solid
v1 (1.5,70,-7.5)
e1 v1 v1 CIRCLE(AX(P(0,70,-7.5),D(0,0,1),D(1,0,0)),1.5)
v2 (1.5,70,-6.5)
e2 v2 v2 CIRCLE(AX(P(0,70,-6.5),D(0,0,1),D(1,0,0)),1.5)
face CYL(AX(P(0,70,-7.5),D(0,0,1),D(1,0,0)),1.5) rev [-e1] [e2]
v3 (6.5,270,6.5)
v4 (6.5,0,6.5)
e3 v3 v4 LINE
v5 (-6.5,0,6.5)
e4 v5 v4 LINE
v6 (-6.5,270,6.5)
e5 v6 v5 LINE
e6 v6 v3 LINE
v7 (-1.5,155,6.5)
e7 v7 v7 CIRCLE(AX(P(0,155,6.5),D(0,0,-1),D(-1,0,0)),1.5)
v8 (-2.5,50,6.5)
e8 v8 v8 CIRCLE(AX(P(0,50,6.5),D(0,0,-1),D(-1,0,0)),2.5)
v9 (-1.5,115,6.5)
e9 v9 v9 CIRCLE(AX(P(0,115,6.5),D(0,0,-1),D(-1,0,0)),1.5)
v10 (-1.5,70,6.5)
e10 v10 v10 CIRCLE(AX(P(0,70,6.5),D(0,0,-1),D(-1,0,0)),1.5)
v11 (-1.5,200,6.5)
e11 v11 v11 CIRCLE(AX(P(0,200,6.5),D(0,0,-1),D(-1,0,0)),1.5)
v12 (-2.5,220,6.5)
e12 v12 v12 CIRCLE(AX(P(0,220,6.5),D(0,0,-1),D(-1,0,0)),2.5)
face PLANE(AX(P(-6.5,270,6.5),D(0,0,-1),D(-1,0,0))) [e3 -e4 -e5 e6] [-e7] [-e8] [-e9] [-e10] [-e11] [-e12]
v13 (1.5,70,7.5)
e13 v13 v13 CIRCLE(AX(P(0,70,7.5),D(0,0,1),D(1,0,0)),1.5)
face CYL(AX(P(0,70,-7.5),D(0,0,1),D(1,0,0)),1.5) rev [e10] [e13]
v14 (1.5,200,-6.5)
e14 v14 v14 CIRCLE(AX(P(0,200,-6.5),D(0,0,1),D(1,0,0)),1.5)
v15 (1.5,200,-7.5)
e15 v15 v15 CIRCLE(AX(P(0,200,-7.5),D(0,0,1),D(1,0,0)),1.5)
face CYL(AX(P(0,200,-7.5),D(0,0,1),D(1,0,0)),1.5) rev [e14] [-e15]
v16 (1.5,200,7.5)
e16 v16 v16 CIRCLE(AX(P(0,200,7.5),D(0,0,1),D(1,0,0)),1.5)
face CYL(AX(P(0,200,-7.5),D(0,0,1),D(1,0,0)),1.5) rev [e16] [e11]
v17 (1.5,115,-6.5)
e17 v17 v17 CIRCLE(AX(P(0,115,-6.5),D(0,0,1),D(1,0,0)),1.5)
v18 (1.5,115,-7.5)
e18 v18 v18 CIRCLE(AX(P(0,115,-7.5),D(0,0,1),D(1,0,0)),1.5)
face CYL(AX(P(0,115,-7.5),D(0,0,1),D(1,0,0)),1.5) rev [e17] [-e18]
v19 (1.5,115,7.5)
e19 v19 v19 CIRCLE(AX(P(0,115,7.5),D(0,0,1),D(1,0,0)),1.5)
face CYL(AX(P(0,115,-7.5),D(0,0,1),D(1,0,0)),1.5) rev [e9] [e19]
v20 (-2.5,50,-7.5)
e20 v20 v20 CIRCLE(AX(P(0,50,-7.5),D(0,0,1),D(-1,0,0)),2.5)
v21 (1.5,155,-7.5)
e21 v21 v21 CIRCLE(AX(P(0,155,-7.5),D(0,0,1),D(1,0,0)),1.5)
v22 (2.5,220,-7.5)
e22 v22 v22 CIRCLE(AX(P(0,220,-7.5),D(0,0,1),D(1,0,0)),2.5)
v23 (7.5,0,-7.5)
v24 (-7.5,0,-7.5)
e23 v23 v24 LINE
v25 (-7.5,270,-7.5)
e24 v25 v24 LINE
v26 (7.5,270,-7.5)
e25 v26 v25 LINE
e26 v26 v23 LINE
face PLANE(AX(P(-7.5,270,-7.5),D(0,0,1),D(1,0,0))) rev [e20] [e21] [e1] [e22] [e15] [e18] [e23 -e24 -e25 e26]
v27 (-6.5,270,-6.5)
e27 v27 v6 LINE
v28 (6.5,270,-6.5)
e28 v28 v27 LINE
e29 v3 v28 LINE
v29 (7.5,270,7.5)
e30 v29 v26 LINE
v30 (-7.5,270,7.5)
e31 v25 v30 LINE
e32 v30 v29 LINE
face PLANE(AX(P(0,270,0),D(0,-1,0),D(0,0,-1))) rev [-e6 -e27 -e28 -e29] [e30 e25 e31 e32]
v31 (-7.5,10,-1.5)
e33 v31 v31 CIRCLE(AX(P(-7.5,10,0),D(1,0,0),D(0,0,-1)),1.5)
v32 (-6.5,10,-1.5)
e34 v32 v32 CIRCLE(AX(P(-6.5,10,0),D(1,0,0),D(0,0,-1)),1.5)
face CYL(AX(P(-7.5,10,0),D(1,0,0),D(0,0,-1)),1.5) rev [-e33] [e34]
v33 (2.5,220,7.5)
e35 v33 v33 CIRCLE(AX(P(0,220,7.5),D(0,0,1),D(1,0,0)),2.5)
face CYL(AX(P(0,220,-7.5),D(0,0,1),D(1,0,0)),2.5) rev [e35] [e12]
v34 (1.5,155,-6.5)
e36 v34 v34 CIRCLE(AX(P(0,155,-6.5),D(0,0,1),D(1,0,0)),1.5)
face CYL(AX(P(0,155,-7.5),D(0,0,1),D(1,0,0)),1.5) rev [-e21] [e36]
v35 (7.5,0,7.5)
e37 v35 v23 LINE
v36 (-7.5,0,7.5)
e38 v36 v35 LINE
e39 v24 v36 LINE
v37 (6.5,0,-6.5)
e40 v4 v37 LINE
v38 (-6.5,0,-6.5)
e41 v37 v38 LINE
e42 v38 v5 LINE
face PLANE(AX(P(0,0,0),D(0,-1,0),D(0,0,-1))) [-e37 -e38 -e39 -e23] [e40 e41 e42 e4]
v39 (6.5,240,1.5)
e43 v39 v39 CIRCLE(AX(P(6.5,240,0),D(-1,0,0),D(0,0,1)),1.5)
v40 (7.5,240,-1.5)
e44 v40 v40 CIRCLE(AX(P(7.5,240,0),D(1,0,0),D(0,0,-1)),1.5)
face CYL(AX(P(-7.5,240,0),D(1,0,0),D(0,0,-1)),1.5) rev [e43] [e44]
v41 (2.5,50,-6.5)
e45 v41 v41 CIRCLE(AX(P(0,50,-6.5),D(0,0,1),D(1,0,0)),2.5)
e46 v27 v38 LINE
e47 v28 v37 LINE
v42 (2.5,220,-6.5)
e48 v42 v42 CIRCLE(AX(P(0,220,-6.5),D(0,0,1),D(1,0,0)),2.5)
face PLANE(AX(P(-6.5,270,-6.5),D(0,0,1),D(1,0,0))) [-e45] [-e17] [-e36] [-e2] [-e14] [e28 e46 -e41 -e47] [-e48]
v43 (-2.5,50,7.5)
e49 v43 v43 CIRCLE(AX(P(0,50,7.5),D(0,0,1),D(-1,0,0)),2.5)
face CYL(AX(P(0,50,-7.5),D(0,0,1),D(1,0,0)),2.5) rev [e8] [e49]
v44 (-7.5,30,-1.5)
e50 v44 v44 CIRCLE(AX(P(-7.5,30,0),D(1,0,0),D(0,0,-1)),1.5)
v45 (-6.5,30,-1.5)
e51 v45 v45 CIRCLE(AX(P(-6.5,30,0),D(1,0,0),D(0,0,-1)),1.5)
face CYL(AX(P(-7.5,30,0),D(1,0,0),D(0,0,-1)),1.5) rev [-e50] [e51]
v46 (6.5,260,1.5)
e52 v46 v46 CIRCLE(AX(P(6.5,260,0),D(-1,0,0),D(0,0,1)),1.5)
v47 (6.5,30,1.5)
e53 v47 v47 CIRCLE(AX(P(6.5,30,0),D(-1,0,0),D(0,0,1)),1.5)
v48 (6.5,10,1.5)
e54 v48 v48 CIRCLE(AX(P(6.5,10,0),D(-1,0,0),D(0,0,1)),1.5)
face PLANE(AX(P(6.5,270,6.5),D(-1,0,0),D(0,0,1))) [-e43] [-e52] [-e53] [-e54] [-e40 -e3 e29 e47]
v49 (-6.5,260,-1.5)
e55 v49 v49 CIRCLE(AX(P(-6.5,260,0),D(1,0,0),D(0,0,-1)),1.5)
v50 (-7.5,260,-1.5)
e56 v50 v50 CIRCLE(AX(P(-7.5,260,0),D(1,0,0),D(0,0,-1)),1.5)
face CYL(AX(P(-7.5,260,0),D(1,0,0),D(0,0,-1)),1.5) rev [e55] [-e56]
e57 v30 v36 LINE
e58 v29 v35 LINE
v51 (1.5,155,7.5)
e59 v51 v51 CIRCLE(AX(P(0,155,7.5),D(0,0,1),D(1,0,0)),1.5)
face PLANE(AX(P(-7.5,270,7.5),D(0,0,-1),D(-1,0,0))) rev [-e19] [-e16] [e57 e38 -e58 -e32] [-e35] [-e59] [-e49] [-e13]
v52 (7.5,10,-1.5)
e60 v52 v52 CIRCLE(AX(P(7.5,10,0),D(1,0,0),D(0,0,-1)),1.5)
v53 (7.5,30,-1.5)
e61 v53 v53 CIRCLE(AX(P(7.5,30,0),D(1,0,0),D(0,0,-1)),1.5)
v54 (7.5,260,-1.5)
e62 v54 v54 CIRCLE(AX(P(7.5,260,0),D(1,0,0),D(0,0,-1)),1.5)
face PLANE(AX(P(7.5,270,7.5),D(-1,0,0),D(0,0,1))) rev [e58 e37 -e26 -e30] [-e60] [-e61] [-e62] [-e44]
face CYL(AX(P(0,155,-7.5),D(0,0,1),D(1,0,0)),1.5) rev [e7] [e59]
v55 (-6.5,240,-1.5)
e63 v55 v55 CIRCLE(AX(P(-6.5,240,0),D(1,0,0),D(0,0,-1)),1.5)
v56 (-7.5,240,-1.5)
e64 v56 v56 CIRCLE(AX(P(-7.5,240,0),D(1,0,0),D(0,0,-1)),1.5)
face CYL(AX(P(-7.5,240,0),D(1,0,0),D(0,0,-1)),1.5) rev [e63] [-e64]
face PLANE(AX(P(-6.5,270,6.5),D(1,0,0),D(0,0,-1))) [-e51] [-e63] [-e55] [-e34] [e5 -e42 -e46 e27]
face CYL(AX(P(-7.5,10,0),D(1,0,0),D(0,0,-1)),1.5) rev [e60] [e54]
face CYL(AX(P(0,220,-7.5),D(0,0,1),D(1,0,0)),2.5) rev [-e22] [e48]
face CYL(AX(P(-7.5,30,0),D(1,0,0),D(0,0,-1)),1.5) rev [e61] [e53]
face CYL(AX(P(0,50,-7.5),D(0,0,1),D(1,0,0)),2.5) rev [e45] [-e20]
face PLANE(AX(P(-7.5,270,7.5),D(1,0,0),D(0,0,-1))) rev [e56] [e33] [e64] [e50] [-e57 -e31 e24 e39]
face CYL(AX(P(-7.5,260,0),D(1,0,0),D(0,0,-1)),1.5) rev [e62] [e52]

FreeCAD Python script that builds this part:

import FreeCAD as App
import Part
import Sketcher

V = App.Vector

doc = App.newDocument("Part")
body = doc.addObject("PartDesign::Body", "Body")

# Sketch on XZ plane
sketch1 = body.newObject("Sketcher::SketchObject", "Sketch")
sketch1.AttachmentSupport = (doc.getObject("XZ_Plane"), [""])
sketch1.MapMode = "FlatFace"
sketch1.addGeometry([
    Part.LineSegment(V(-8, -8, 0), V(-8, 8, 0)),  # 0
    Part.LineSegment(V(-8, 8, 0), V(8, 8, 0)),  # 1
    Part.LineSegment(V(8, 8, 0), V(8, -8, 0)),  # 2
    Part.LineSegment(V(8, -8, 0), V(-8, -8, 0)),  # 3
    Part.LineSegment(V(6, 6, 0), V(-6, 6, 0)),  # 4
    Part.LineSegment(V(-6, 6, 0), V(-6, -6, 0)),  # 5
    Part.LineSegment(V(-6, -6, 0), V(6, -6, 0)),  # 6
    Part.LineSegment(V(6, -6, 0), V(6, 6, 0)),  # 7
], False)
sketch1.addConstraint([
    Sketcher.Constraint("Coincident", 0, 2, 1, 1),
    Sketcher.Constraint("Coincident", 1, 2, 2, 1),
    Sketcher.Constraint("Coincident", 2, 2, 3, 1),
    Sketcher.Constraint("Coincident", 3, 2, 0, 1),
    Sketcher.Constraint("Coincident", 4, 2, 5, 1),
    Sketcher.Constraint("Coincident", 5, 2, 6, 1),
    Sketcher.Constraint("Coincident", 6, 2, 7, 1),
    Sketcher.Constraint("Coincident", 7, 2, 4, 1),
    Sketcher.Constraint("Vertical", 0),
    Sketcher.Constraint("Horizontal", 1),
    Sketcher.Constraint("Vertical", 2),
    Sketcher.Constraint("Horizontal", 3),
    Sketcher.Constraint("Horizontal", 4),
    Sketcher.Constraint("Vertical", 5),
    Sketcher.Constraint("Horizontal", 6),
    Sketcher.Constraint("Vertical", 7),
    Sketcher.Constraint("Symmetric", 0, 2, 2, 2, -1, 1),
    Sketcher.Constraint("Symmetric", 4, 2, 6, 2, -1, 1),
    Sketcher.Constraint("Equal", 3, 0),
    Sketcher.Constraint("Equal", 6, 5),
    Sketcher.Constraint("DistanceX", 1, 1, 1, 2, 15.0),
    Sketcher.Constraint("DistanceX", 4, 2, 4, 1, 13.0),
])
pad1 = body.newObject("PartDesign::Pad", "Pad")
pad1.Profile = sketch1
pad1.Length = 270
pad1.Reversed = True

# Sketch on XY plane
sketch2 = body.newObject("Sketcher::SketchObject", "Sketch001")
sketch2.AttachmentSupport = (doc.getObject("XY_Plane"), [""])
sketch2.MapMode = "FlatFace"
sketch2.AttachmentOffset = App.Placement(V(0, 0, 7.5), App.Rotation())
sketch2.addGeometry([
    Part.Circle(V(0, 155, 0), V(0, 0, 1), 1.5),  # 0
    Part.Circle(V(0, 115, 0), V(0, 0, 1), 1.5),  # 1
    Part.Circle(V(0, 200, 0), V(0, 0, 1), 1.5),  # 2
    Part.Circle(V(0, 70, 0), V(0, 0, 1), 1.5),  # 3
    Part.Circle(V(0, 220, 0), V(0, 0, 1), 2.5),  # 4
    Part.Circle(V(0, 50, 0), V(0, 0, 1), 2.5),  # 5
], False)
sketch2.addConstraint([
    Sketcher.Constraint("Equal", 0, 1),
    Sketcher.Constraint("Equal", 1, 2),
    Sketcher.Constraint("Equal", 2, 3),
    Sketcher.Constraint("Equal", 4, 5),
    Sketcher.Constraint("PointOnObject", 0, 3, -2),
    Sketcher.Constraint("PointOnObject", 1, 3, -2),
    Sketcher.Constraint("PointOnObject", 2, 3, -2),
    Sketcher.Constraint("PointOnObject", 3, 3, -2),
    Sketcher.Constraint("PointOnObject", 4, 3, -2),
    Sketcher.Constraint("PointOnObject", 5, 3, -2),
    Sketcher.Constraint("Diameter", 0, 3.0),
    Sketcher.Constraint("Diameter", 4, 5.0),
    Sketcher.Constraint("DistanceY", -1, 1, 0, 3, 155.0),
    Sketcher.Constraint("DistanceY", -1, 1, 1, 3, 115.0),
    Sketcher.Constraint("DistanceY", -1, 1, 2, 3, 200.0),
    Sketcher.Constraint("DistanceY", -1, 1, 3, 3, 70.0),
    Sketcher.Constraint("DistanceY", -1, 1, 4, 3, 220.0),
    Sketcher.Constraint("DistanceY", -1, 1, 5, 3, 50.0),
])
pocket1 = body.newObject("PartDesign::Pocket", "Pocket")
pocket1.Profile = sketch2
pocket1.Type = "ThroughAll"

# Sketch on YZ plane
sketch3 = body.newObject("Sketcher::SketchObject", "Sketch002")
sketch3.AttachmentSupport = (doc.getObject("YZ_Plane"), [""])
sketch3.MapMode = "FlatFace"
sketch3.AttachmentOffset = App.Placement(V(0, 0, 7.5), App.Rotation())
sketch3.addGeometry([
    Part.Circle(V(240, 0, 0), V(0, 0, 1), 1.5),
    Part.Circle(V(30, 0, 0), V(0, 0, 1), 1.5),
    Part.Circle(V(10, 0, 0), V(0, 0, 1), 1.5),
    Part.Circle(V(260, 0, 0), V(0, 0, 1), 1.5),
], False)
sketch3.addConstraint([
    Sketcher.Constraint("Equal", 0, 1),
    Sketcher.Constraint("Equal", 1, 2),
    Sketcher.Constraint("Equal", 2, 3),
    Sketcher.Constraint("PointOnObject", 0, 3, -1),
    Sketcher.Constraint("PointOnObject", 1, 3, -1),
    Sketcher.Constraint("PointOnObject", 2, 3, -1),
    Sketcher.Constraint("PointOnObject", 3, 3, -1),
    Sketcher.Constraint("Diameter", 0, 3.0),
    Sketcher.Constraint("DistanceX", -1, 1, 0, 3, 240.0),
    Sketcher.Constraint("DistanceX", -1, 1, 1, 3, 30.0),
    Sketcher.Constraint("DistanceX", -1, 1, 2, 3, 10.0),
    Sketcher.Constraint("DistanceX", -1, 1, 3, 3, 260.0),
])
pocket2 = body.newObject("PartDesign::Pocket", "Pocket001")
pocket2.Profile = sketch3
pocket2.Type = "ThroughAll"

doc.recompute()
